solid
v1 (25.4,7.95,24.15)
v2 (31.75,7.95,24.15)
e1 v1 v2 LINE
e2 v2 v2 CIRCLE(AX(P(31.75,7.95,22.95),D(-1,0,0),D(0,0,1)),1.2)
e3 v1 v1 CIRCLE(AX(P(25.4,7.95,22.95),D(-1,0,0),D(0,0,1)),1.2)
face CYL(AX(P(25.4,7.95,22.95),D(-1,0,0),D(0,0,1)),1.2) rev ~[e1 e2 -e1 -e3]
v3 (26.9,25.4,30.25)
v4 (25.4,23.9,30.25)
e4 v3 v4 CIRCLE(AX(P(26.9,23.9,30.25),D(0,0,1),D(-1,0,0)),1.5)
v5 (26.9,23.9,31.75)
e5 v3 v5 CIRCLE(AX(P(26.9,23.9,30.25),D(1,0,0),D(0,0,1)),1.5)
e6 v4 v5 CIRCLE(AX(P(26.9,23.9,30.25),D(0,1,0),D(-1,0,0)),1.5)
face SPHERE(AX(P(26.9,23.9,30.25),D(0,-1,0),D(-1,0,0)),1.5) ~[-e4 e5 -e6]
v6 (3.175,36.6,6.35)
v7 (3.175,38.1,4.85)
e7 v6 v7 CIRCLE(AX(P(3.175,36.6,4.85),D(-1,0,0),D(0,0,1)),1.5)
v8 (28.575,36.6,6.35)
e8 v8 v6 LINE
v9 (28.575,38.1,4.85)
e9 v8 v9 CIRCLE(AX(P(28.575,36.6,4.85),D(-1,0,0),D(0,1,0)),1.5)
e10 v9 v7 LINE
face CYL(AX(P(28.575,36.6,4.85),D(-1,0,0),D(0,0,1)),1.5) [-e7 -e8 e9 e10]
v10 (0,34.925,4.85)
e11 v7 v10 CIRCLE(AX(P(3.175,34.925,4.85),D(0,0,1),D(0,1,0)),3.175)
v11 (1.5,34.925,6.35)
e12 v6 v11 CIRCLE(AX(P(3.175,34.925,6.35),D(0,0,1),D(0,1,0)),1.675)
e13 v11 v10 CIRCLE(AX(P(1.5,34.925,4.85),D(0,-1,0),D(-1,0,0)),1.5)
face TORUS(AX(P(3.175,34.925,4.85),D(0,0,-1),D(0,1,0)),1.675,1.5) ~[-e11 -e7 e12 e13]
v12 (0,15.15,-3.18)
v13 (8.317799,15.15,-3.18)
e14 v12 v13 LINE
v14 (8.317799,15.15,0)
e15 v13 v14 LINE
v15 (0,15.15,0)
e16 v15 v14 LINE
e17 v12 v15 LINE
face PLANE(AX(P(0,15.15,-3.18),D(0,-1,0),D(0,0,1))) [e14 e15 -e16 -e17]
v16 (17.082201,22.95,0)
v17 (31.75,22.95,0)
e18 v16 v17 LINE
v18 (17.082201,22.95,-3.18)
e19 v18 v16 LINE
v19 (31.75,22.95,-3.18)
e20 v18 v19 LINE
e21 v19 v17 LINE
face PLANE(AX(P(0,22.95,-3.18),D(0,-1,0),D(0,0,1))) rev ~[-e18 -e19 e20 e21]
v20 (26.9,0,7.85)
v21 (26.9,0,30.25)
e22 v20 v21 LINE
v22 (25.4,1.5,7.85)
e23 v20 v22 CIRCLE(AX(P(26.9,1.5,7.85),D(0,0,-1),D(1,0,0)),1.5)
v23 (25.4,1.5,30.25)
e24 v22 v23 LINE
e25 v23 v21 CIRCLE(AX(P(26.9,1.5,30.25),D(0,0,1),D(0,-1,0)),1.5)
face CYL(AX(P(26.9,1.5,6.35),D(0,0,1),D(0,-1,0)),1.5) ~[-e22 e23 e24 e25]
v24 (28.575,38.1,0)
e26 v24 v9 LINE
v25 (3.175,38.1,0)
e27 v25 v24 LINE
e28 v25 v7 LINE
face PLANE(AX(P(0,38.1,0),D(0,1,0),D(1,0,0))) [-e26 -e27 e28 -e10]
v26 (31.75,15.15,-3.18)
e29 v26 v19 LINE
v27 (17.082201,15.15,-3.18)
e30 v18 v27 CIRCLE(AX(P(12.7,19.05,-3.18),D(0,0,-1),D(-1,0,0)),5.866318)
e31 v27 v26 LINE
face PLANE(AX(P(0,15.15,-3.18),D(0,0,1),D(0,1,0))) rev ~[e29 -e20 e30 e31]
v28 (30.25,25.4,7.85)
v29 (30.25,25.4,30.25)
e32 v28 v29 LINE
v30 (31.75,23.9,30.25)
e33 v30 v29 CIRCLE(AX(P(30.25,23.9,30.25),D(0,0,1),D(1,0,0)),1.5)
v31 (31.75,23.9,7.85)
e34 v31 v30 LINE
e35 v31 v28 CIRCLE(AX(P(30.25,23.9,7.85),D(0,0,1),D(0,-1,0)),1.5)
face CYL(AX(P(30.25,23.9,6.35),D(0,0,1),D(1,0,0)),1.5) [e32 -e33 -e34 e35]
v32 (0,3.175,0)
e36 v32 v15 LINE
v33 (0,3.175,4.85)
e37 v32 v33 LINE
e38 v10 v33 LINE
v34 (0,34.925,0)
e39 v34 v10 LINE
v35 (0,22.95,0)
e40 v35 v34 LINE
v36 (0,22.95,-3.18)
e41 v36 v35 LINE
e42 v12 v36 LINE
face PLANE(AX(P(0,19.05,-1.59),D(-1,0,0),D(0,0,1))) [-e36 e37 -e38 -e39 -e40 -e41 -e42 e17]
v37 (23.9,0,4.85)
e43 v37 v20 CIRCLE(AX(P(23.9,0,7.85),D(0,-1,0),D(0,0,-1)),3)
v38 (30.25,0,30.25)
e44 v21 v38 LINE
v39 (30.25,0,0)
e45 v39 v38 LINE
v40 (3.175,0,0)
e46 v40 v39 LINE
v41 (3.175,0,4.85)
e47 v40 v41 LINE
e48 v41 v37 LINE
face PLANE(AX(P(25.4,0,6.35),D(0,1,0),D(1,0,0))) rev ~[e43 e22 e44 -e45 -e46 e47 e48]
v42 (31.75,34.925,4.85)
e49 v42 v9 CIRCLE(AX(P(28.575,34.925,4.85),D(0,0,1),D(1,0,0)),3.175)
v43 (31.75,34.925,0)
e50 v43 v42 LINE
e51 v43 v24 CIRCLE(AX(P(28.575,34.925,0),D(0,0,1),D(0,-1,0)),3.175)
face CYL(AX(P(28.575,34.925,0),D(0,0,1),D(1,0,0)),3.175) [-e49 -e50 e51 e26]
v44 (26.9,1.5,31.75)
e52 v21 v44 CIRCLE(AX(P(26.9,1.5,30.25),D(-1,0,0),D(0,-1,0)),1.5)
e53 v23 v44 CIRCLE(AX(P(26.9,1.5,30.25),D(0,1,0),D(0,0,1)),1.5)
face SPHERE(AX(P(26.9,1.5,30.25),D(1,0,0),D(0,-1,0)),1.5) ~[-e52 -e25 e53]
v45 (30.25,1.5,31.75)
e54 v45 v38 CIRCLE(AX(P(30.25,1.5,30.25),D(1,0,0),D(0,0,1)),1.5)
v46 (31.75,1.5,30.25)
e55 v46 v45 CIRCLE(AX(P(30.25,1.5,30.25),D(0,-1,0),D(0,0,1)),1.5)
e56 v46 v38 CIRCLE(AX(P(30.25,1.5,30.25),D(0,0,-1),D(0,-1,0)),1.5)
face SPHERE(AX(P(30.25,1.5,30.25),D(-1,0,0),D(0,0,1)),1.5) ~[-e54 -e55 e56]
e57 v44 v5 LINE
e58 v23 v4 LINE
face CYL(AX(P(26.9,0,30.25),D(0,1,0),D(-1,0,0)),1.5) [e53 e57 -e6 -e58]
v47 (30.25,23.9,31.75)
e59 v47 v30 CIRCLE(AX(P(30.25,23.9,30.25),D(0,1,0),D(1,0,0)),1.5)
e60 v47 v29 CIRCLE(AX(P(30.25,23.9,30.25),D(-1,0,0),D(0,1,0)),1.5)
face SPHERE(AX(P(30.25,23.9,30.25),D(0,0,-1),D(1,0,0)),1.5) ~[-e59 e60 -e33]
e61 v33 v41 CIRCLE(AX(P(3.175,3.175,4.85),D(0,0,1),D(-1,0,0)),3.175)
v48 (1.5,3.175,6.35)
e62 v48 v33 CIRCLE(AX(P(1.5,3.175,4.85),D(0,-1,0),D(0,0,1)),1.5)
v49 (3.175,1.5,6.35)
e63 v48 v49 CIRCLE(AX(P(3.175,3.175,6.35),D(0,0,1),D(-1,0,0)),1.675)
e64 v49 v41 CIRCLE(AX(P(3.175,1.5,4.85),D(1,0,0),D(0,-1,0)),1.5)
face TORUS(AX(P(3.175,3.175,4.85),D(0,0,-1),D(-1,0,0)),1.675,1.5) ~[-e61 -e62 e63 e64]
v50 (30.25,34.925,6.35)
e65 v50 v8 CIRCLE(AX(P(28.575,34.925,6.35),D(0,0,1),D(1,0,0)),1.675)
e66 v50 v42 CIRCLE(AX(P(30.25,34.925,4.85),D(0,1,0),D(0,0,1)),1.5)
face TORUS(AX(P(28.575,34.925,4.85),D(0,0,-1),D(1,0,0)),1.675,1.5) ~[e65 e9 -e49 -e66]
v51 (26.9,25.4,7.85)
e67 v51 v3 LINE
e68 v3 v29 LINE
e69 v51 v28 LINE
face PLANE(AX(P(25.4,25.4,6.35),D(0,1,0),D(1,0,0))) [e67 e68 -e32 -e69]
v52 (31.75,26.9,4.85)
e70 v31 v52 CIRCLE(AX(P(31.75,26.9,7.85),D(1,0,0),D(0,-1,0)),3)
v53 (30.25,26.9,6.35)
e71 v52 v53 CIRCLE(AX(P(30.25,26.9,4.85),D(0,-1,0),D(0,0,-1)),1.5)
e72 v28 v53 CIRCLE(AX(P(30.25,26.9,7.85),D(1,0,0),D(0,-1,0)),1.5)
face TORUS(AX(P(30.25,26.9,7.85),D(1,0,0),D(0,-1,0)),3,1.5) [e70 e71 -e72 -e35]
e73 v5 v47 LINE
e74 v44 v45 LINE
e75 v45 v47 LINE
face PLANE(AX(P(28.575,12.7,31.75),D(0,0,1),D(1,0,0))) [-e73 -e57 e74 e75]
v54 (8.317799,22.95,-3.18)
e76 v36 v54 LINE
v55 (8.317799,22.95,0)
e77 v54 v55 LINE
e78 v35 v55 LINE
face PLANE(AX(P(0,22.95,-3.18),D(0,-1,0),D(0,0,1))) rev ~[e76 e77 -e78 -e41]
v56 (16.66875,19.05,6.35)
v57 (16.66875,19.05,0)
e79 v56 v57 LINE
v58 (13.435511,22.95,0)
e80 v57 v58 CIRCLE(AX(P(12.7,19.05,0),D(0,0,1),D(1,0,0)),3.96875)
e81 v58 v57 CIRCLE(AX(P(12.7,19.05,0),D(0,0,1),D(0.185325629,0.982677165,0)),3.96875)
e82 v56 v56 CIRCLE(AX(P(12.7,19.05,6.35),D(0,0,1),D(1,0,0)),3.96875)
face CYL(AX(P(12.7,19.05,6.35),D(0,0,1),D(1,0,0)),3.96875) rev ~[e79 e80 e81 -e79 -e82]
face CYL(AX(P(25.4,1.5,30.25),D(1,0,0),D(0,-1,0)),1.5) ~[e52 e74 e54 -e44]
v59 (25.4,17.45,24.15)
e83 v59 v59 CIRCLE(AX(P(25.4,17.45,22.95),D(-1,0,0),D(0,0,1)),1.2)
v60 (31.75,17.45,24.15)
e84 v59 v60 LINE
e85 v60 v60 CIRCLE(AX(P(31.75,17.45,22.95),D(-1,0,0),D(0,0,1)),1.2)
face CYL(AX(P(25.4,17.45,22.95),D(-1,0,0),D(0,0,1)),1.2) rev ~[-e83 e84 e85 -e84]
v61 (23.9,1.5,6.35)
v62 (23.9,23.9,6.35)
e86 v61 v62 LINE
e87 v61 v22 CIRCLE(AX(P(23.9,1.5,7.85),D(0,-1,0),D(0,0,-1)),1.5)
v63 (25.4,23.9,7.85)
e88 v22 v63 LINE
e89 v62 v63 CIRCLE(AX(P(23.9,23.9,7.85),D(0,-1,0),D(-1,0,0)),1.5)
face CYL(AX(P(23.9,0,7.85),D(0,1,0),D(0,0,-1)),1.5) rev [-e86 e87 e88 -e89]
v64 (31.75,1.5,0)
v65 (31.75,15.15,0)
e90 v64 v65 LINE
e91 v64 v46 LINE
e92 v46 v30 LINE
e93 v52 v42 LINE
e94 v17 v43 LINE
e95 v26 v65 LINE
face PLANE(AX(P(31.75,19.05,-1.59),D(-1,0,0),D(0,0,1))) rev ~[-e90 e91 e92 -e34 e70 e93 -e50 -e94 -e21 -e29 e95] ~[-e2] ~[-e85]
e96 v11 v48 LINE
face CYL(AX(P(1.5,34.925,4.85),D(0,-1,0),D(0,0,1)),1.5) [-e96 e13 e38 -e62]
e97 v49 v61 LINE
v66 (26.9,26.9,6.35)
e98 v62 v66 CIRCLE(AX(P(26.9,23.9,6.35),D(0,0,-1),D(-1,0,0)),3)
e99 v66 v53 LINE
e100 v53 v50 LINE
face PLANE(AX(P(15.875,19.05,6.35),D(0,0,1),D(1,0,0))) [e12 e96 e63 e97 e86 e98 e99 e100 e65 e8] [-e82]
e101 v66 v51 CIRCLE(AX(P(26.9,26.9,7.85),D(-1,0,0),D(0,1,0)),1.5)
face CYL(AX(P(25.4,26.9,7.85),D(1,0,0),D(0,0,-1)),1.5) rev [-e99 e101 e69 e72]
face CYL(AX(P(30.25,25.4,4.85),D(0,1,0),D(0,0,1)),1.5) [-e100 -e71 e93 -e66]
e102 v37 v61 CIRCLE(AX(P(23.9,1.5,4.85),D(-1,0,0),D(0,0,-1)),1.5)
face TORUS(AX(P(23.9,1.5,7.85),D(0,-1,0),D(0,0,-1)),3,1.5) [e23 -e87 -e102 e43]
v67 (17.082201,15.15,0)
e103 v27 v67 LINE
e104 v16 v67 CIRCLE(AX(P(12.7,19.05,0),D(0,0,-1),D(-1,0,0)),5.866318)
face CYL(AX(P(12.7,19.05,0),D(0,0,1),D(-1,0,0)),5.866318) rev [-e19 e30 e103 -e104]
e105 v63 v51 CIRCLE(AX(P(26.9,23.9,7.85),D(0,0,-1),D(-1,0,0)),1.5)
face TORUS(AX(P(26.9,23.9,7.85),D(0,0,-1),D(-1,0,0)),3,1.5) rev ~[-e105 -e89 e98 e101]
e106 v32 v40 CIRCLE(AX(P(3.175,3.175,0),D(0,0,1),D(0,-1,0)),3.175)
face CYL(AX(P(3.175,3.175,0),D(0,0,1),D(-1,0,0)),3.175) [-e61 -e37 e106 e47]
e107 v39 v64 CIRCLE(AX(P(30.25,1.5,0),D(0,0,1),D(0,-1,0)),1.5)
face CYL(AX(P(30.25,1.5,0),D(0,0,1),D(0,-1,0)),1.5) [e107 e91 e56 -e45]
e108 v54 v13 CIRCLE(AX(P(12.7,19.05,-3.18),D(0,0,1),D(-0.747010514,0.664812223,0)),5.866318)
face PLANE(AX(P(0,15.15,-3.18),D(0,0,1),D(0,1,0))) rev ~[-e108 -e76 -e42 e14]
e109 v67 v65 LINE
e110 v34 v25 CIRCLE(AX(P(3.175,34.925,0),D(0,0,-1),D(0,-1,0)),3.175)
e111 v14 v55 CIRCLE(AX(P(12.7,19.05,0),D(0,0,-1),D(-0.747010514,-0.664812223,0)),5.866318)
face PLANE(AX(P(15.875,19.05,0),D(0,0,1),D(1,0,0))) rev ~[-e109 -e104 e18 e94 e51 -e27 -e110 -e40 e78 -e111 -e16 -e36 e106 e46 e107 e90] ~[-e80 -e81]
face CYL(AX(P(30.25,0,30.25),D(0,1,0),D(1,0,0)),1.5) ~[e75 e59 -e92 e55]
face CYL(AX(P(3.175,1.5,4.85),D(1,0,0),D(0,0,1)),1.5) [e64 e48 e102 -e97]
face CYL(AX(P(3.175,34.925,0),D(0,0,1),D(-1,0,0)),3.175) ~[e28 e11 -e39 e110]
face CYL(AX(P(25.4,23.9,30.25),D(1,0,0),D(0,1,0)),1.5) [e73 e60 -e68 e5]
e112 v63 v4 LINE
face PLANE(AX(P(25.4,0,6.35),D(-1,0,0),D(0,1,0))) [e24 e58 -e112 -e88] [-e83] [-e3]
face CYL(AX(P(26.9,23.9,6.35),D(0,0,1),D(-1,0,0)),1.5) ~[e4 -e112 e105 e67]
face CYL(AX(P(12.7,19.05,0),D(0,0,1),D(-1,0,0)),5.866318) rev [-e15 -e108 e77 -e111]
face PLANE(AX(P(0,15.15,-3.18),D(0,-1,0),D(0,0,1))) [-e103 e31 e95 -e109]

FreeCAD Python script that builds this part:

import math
import FreeCAD as App
import Part
import Sketcher
Q = App.Units.Quantity


def edges_at(feature, points):
    """Names of the edges that pass closest to the given points."""
    edges = feature.Shape.Edges
    near = lambda p: min(range(len(edges)), key=lambda i: edges[i].distToShape(Part.Vertex(*p))[0])
    return sorted({f"Edge{near(p) + 1}" for p in points})


def add_polygon(sketch, points):
    """Adds a closed chain of lines whose ends are joined by coincident constraints."""
    first, n = sketch.GeometryCount, len(points)
    for a, b in zip(points, points[1:] + points[:1]):
        sketch.addGeometry(Part.LineSegment(App.Vector(*a, 0), App.Vector(*b, 0)), False)
    for i in range(n):
        sketch.addConstraint(Sketcher.Constraint("Coincident", first + i, 2, first + (i + 1) % n, 1))

doc = App.newDocument("Part")
body = doc.addObject("PartDesign::Body", "Body")

# Sketch on XY plane
sketch1 = body.newObject("Sketcher::SketchObject", "Sketch")
sketch1.AttachmentSupport = (doc.getObject("XY_Plane"), [""])
sketch1.MapMode = "FlatFace"
add_polygon(sketch1, [(0, 38.1), (0, 0), (31.75, 0), (31.75, 38.1)])  # lines 0-3
sketch1.addConstraint([
    Sketcher.Constraint("Vertical", 0),
    Sketcher.Constraint("Horizontal", 1),
    Sketcher.Constraint("Vertical", 2),
    Sketcher.Constraint("Horizontal", 3),
    Sketcher.Constraint("Coincident", 0, 2, -1, 1),
    Sketcher.Constraint("DistanceY", 0, 2, 0, 1, Q("1.5 in")),
    Sketcher.Constraint("DistanceX", 1, 1, 1, 2, Q("1.25 in")),
])
pad1 = body.newObject("PartDesign::Pad", "Pad")
pad1.Profile = sketch1
pad1.Length = Q("0.25 in")

# Sketch on XY plane
sketch2 = body.newObject("Sketcher::SketchObject", "Sketch001")
sketch2.AttachmentSupport = (doc.getObject("XY_Plane"), [""])
sketch2.MapMode = "FlatFace"
sketch2.AttachmentOffset = App.Placement(App.Vector(0, 0, 0.25 * 25.4), App.Rotation())
add_polygon(sketch2, [(25.4, 25.4), (25.4, 0), (31.75, 0), (31.75, 25.4)])  # lines 0-3
sketch2.addConstraint([
    Sketcher.Constraint("Vertical", 0),
    Sketcher.Constraint("Horizontal", 1),
    Sketcher.Constraint("Vertical", 2),
    Sketcher.Constraint("Horizontal", 3),
    Sketcher.Constraint("PointOnObject", 0, 2, -1),
    Sketcher.Constraint("DistanceY", 0, 2, 0, 1, Q("1 in")),
    Sketcher.Constraint("DistanceX", -1, 1, 0, 2, Q("1 in")),
    Sketcher.Constraint("DistanceX", 1, 1, 1, 2, Q("0.25 in")),
])
pad2 = body.newObject("PartDesign::Pad", "Pad001")
pad2.Profile = sketch2
pad2.Length = Q("1 in")

# Sketch on YZ plane
sketch3 = body.newObject("Sketcher::SketchObject", "Sketch002")
sketch3.AttachmentSupport = (doc.getObject("YZ_Plane"), [""])
sketch3.MapMode = "FlatFace"
sketch3.AttachmentOffset = App.Placement(App.Vector(0, 0, 1 * 25.4), App.Rotation())
sketch3.addGeometry([
    Part.Circle(App.Vector(17.45, 22.95, 0), App.Vector(0, 0, 1), 1.2),
    Part.Circle(App.Vector(7.95, 22.95, 0), App.Vector(0, 0, 1), 1.2),
], False)
sketch3.addConstraint([
    Sketcher.Constraint("Equal", 0, 1),
    Sketcher.Constraint("Horizontal", 0, 3, 1, 3),
    Sketcher.Constraint("Diameter", 0, 2.4),
    Sketcher.Constraint("DistanceX", -1, 1, 0, 3, 17.45),
    Sketcher.Constraint("DistanceY", -1, 1, 0, 3, 22.95),
    Sketcher.Constraint("DistanceX", -1, 1, 1, 3, 7.95),
])
pocket1 = body.newObject("PartDesign::Pocket", "Pocket")
pocket1.Profile = sketch3
pocket1.Type = "ThroughAll"
pocket1.Reversed = True

# Sketch on XY plane
sketch4 = body.newObject("Sketcher::SketchObject", "Sketch003")
sketch4.AttachmentSupport = (doc.getObject("XY_Plane"), [""])
sketch4.MapMode = "FlatFace"
sketch4.AttachmentOffset = App.Placement(App.Vector(0, 0, 0.25 * 25.4), App.Rotation())
sketch4.addGeometry(Part.Circle(App.Vector(12.7, 19.05, 0), App.Vector(0, 0, 1), 3.96875), False)
sketch4.addConstraint([
    Sketcher.Constraint("Diameter", 0, Q("0.3125 in")),
    Sketcher.Constraint("DistanceX", -1, 1, 0, 3, Q("0.5 in")),
    Sketcher.Constraint("DistanceY", -1, 1, 0, 3, Q("0.75 in")),
])
pocket2 = body.newObject("PartDesign::Pocket", "Pocket001")
pocket2.Profile = sketch4
pocket2.Type = "ThroughAll"

# Sketch on YZ plane
sketch5 = body.newObject("Sketcher::SketchObject", "Sketch004")
sketch5.AttachmentSupport = (doc.getObject("YZ_Plane"), [""])
sketch5.MapMode = "FlatFace"
add_polygon(sketch5, [(22.95, -3.18), (15.15, -3.18), (15.15, 0), (22.95, 0)])  # lines 0-3
sketch5.addConstraint([
    Sketcher.Constraint("Horizontal", 0),
    Sketcher.Constraint("Vertical", 1),
    Sketcher.Constraint("Horizontal", 2),
    Sketcher.Constraint("Vertical", 3),
    Sketcher.Constraint("PointOnObject", 1, 2, -1),
    Sketcher.Constraint("DistanceX", 0, 2, 0, 1, 7.8),
    Sketcher.Constraint("DistanceY", 1, 1, 1, 2, 3.18),
    Sketcher.Constraint("DistanceX", -1, 1, 0, 2, 15.15),
])
pad3 = body.newObject("PartDesign::Pad", "Pad002")
pad3.Profile = sketch5
pad3.Length = Q("1.25 in")
doc.recompute()

fillet = body.newObject("PartDesign::Fillet", "Fillet")
fillet.Base = (pad3, edges_at(pad3, [(0, 0, 3.175), (0, 38.1, 3.175), (31.75, 38.1, 3.175)]))
fillet.Radius = Q("0.125 in")
doc.recompute()

fillet2 = body.newObject("PartDesign::Fillet", "Fillet001")
fillet2.Base = (fillet, edges_at(fillet, [
    (31.75, 30.163, 6.35),
    (28.575, 0, 31.75),
    (25.4, 0, 19.05),
    (28.575, 25.4, 6.35),
    (31.75, 25.4, 19.05),
    (25.4, 12.7, 31.75),
    (25.4, 25.4, 19.05),
    (31.75, 12.7, 31.75),
    (28.575, 25.4, 31.75),
    (25.4, 12.7, 6.35),
    (15.875, 38.1, 6.35),
    (14.287, 0, 6.35),
    (0, 19.05, 6.35),
    (0.93, 0.93, 6.35),
    (0.93, 37.17, 6.35),
    (30.82, 37.17, 6.35),
    (31.75, 0, 15.875),
]))
fillet2.Radius = 1.5

# Sketch on XY plane
sketch6 = body.newObject("Sketcher::SketchObject", "Sketch005")
sketch6.AttachmentSupport = (doc.getObject("XY_Plane"), [""])
sketch6.MapMode = "FlatFace"
sketch6.addGeometry([
    Part.LineSegment(App.Vector(13.435511, 22.95, 0), App.Vector(11.964489, 22.95, 0)),
    Part.ArcOfCircle(Part.Circle(App.Vector(12.7, 19.05, 0), App.Vector(0, 0, 1), 3.96875), math.radians(100.680118), math.radians(259.319882)),
    Part.LineSegment(App.Vector(11.964489, 15.15, 0), App.Vector(13.435511, 15.15, 0)),
    Part.ArcOfCircle(Part.Circle(App.Vector(12.7, 19.05, 0), App.Vector(0, 0, 1), 3.96875), math.radians(-79.319882), math.radians(79.319882)),
], False)
sketch6.addConstraint([
    Sketcher.Constraint("Coincident", 0, 2, 1, 1),
    Sketcher.Constraint("Coincident", 1, 2, 2, 1),
    Sketcher.Constraint("Coincident", 2, 2, 3, 1),
    Sketcher.Constraint("Coincident", 3, 2, 0, 1),
    Sketcher.Constraint("Horizontal", 0),
    Sketcher.Constraint("Horizontal", 2),
    Sketcher.Constraint("Coincident", 3, 3, 1, 3),
    Sketcher.Constraint("Equal", 1, 3),
    Sketcher.Constraint("Vertical", 0, 2, 1, 2),
    Sketcher.Constraint("Radius", 1, Q("0.15625 in")),
    Sketcher.Constraint("DistanceX", -1, 1, 1, 3, Q("0.5 in")),
    Sketcher.Constraint("DistanceY", -1, 1, 1, 3, Q("0.75 in")),
    Sketcher.Constraint("DistanceY", -1, 1, 0, 2, 22.95),
])
pocket3 = body.newObject("PartDesign::Pocket", "Pocket002")
pocket3.Profile = sketch6
pocket3.Type = "ThroughAll"

# Sketch on XY plane
sketch7 = body.newObject("Sketcher::SketchObject", "Sketch006")
sketch7.AttachmentSupport = (doc.getObject("XY_Plane"), [""])
sketch7.MapMode = "FlatFace"
sketch7.addGeometry(Part.Circle(App.Vector(12.7, 19.05, 0), App.Vector(0, 0, 1), 5.866318), False)
sketch7.addConstraint([
    Sketcher.Constraint("DistanceX", -1, 1, 0, 3, Q("0.5 in")),
    Sketcher.Constraint("DistanceY", -1, 1, 0, 3, Q("0.75 in")),
    Sketcher.Constraint("Diameter", 0, 11.732636),
])
pocket4 = body.newObject("PartDesign::Pocket", "Pocket003")
pocket4.Profile = sketch7
pocket4.Length = 3.18

doc.recompute()
